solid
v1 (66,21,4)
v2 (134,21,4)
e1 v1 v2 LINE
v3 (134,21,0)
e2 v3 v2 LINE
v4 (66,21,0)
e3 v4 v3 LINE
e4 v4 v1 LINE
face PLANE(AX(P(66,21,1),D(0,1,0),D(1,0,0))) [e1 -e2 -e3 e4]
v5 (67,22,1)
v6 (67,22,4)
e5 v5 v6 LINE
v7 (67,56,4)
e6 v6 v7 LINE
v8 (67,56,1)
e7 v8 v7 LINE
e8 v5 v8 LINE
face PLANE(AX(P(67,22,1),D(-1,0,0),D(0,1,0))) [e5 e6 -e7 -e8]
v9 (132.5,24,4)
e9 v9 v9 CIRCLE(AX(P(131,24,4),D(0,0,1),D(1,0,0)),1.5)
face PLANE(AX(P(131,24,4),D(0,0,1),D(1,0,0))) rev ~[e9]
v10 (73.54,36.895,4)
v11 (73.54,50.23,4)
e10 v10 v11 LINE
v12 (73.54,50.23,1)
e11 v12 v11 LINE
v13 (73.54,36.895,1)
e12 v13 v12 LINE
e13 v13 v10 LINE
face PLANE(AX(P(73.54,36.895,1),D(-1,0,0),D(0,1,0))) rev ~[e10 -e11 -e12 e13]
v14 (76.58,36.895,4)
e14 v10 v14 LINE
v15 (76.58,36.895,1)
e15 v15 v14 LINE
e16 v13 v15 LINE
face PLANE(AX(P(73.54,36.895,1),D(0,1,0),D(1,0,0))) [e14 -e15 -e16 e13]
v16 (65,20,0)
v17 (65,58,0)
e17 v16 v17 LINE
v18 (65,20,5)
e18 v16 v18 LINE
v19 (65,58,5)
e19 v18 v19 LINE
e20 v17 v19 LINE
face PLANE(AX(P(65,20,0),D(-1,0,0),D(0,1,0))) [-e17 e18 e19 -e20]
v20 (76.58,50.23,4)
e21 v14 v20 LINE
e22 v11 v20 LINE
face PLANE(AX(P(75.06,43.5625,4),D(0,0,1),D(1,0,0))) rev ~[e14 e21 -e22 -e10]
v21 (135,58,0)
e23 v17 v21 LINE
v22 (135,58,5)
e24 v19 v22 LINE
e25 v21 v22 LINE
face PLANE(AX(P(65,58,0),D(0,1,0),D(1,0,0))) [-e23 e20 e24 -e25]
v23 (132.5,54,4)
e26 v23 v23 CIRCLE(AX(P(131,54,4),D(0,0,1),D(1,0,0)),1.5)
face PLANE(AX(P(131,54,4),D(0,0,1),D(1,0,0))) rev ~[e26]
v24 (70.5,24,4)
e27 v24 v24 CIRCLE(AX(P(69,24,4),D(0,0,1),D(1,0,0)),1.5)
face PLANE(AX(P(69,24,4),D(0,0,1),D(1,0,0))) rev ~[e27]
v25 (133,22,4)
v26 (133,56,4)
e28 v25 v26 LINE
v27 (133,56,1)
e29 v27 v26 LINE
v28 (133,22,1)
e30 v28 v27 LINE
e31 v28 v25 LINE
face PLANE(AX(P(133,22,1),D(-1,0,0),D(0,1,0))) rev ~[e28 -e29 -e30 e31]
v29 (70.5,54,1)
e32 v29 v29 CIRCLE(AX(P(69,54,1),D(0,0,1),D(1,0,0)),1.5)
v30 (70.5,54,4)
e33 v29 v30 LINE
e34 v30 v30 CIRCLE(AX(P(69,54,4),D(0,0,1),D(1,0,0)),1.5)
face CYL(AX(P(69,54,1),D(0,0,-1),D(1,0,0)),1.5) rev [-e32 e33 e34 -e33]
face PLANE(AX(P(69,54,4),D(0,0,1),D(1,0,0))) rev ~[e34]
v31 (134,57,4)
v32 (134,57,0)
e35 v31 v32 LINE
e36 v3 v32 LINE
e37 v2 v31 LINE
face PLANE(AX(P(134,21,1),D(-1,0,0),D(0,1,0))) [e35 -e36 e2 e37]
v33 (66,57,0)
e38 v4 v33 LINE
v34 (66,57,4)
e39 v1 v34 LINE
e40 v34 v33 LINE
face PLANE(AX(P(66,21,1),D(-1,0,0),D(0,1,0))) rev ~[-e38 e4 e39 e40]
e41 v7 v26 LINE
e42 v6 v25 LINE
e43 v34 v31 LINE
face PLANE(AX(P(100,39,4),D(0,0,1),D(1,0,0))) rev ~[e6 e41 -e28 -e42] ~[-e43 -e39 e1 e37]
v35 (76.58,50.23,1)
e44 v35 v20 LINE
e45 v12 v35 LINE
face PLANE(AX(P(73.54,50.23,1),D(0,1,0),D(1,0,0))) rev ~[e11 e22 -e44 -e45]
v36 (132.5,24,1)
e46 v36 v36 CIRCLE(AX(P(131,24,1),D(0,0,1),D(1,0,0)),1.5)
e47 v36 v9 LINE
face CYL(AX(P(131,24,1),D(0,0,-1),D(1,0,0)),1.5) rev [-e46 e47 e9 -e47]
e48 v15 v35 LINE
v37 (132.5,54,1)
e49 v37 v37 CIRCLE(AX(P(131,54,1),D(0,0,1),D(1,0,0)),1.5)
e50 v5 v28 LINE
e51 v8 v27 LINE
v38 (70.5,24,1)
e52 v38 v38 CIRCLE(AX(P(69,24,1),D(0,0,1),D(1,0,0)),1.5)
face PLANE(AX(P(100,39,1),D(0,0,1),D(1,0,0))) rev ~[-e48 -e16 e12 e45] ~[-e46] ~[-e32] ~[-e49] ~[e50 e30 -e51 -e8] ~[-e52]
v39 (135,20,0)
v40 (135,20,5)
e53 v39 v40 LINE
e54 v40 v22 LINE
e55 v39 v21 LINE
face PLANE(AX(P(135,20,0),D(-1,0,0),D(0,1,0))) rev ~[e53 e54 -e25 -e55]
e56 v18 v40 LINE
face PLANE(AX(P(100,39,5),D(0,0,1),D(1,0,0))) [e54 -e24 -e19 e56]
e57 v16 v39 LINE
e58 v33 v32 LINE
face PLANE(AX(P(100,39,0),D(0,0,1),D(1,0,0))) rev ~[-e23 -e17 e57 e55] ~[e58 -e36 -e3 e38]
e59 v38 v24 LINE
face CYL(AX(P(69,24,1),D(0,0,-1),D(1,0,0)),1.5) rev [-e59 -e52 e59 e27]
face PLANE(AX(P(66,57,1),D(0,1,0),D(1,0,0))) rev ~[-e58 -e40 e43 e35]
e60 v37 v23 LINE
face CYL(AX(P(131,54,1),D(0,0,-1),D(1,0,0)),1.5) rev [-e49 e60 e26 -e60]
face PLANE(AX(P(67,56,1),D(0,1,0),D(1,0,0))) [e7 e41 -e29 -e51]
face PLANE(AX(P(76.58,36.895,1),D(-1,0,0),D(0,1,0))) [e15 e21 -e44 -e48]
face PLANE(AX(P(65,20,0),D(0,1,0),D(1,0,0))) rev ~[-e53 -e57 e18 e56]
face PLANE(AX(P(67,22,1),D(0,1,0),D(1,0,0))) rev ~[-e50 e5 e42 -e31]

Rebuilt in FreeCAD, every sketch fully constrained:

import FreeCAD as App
import Part
import Sketcher

V = App.Vector
Q = App.Units.Quantity

doc = App.newDocument("Part")
body = doc.addObject("PartDesign::Body", "Body")

# Sketch on XY plane
sketch1 = body.newObject("Sketcher::SketchObject", "Sketch")
sketch1.AttachmentSupport = (doc.getObject("XY_Plane"), [""])
sketch1.MapMode = "FlatFace"
sketch1.addGeometry([
    Part.LineSegment(V(-34, 18, 0), V(-34, -18, 0)),
    Part.LineSegment(V(-34, -18, 0), V(34, -18, 0)),
    Part.LineSegment(V(34, -18, 0), V(34, 18, 0)),
    Part.LineSegment(V(34, 18, 0), V(-34, 18, 0)),
], False)
sketch1.addConstraint([
    Sketcher.Constraint("Coincident", 0, 2, 1, 1),
    Sketcher.Constraint("Coincident", 1, 2, 2, 1),
    Sketcher.Constraint("Coincident", 2, 2, 3, 1),
    Sketcher.Constraint("Coincident", 3, 2, 0, 1),
    Sketcher.Constraint("Vertical", 0),
    Sketcher.Constraint("Horizontal", 1),
    Sketcher.Constraint("Vertical", 2),
    Sketcher.Constraint("Horizontal", 3),
    Sketcher.Constraint("Symmetric", 0, 2, 2, 2, -1, 1),
    Sketcher.Constraint("DistanceX", 1, 1, 1, 2, Q("68 mm")),
    Sketcher.Constraint("DistanceY", 0, 2, 0, 1, Q("36 mm")),
])
pad1 = body.newObject("PartDesign::Pad", "Pad")
pad1.Profile = sketch1
pad1.Length = 1

# Sketch on XY plane
sketch2 = body.newObject("Sketcher::SketchObject", "Sketch001")
sketch2.AttachmentSupport = (doc.getObject("XY_Plane"), [""])
sketch2.MapMode = "FlatFace"
sketch2.AttachmentOffset = App.Placement(V(0, 0, 1), App.Rotation())
sketch2.addGeometry([
    Part.LineSegment(V(-34, 18, 0), V(-34, -18, 0)),  # 0
    Part.LineSegment(V(-34, -18, 0), V(34, -18, 0)),  # 1
    Part.LineSegment(V(34, -18, 0), V(34, 18, 0)),  # 2
    Part.LineSegment(V(34, 18, 0), V(-34, 18, 0)),  # 3
    Part.LineSegment(V(33, -17, 0), V(-33, -17, 0)),  # 4
    Part.LineSegment(V(-33, -17, 0), V(-33, 17, 0)),  # 5
    Part.LineSegment(V(-33, 17, 0), V(33, 17, 0)),  # 6
    Part.LineSegment(V(33, 17, 0), V(33, -17, 0)),  # 7
], False)
sketch2.addConstraint([
    Sketcher.Constraint("Coincident", 0, 2, 1, 1),
    Sketcher.Constraint("Coincident", 1, 2, 2, 1),
    Sketcher.Constraint("Coincident", 2, 2, 3, 1),
    Sketcher.Constraint("Coincident", 3, 2, 0, 1),
    Sketcher.Constraint("Coincident", 4, 2, 5, 1),
    Sketcher.Constraint("Coincident", 5, 2, 6, 1),
    Sketcher.Constraint("Coincident", 6, 2, 7, 1),
    Sketcher.Constraint("Coincident", 7, 2, 4, 1),
    Sketcher.Constraint("Vertical", 0),
    Sketcher.Constraint("Horizontal", 1),
    Sketcher.Constraint("Vertical", 2),
    Sketcher.Constraint("Horizontal", 3),
    Sketcher.Constraint("Horizontal", 4),
    Sketcher.Constraint("Vertical", 5),
    Sketcher.Constraint("Horizontal", 6),
    Sketcher.Constraint("Vertical", 7),
    Sketcher.Constraint("Symmetric", 0, 2, 2, 2, -1, 1),
    Sketcher.Constraint("Symmetric", 4, 2, 6, 2, -1, 1),
    Sketcher.Constraint("DistanceX", 1, 1, 1, 2, Q("68 mm")),
    Sketcher.Constraint("DistanceX", 4, 2, 4, 1, Q("66 mm")),
    Sketcher.Constraint("DistanceY", 0, 2, 0, 1, Q("36 mm")),
    Sketcher.Constraint("DistanceY", 5, 1, 5, 2, Q("34 mm")),
])
pad2 = body.newObject("PartDesign::Pad", "Pad001")
pad2.Profile = sketch2
pad2.Length = 3

# Sketch on XY plane
sketch3 = body.newObject("Sketcher::SketchObject", "Sketch002")
sketch3.AttachmentSupport = (doc.getObject("XY_Plane"), [""])
sketch3.MapMode = "FlatFace"
sketch3.AttachmentOffset = App.Placement(V(0, 0, 1), App.Rotation())
sketch3.addGeometry([
    Part.LineSegment(V(-26.5, 11.2, 0), V(-26.5, -2.1, 0)),
    Part.LineSegment(V(-26.5, -2.1, 0), V(-23.4, -2.1, 0)),
    Part.LineSegment(V(-23.4, -2.1, 0), V(-23.4, 11.2, 0)),
    Part.LineSegment(V(-23.4, 11.2, 0), V(-26.5, 11.2, 0)),
], False)
sketch3.addConstraint([
    Sketcher.Constraint("Coincident", 0, 2, 1, 1),
    Sketcher.Constraint("Coincident", 1, 2, 2, 1),
    Sketcher.Constraint("Coincident", 2, 2, 3, 1),
    Sketcher.Constraint("Coincident", 3, 2, 0, 1),
    Sketcher.Constraint("Vertical", 0),
    Sketcher.Constraint("Horizontal", 1),
    Sketcher.Constraint("Vertical", 2),
    Sketcher.Constraint("Horizontal", 3),
    Sketcher.Constraint("DistanceX", 1, 1, 1, 2, Q("3.04 mm")),
    Sketcher.Constraint("DistanceY", 0, 2, 0, 1, Q("13.335 mm")),
    Sketcher.Constraint("DistanceX", 0, 2, -1, 1, Q("26.46 mm")),
    Sketcher.Constraint("DistanceY", -1, 1, 2, 2, Q("11.23 mm")),
])
pad3 = body.newObject("PartDesign::Pad", "Pad002")
pad3.Profile = sketch3
pad3.Length = 3

# Sketch on XY plane
sketch4 = body.newObject("Sketcher::SketchObject", "Sketch003")
sketch4.AttachmentSupport = (doc.getObject("XY_Plane"), [""])
sketch4.MapMode = "FlatFace"
sketch4.AttachmentOffset = App.Placement(V(0, 0, 1), App.Rotation())
sketch4.addGeometry([
    Part.Circle(V(-31, 15, 0), V(0, 0, 1), 1.5),
    Part.Circle(V(31, 15, 0), V(0, 0, 1), 1.5),
    Part.Circle(V(-31, -15, 0), V(0, 0, 1), 1.5),
    Part.Circle(V(31, -15, 0), V(0, 0, 1), 1.5),
], False)
sketch4.addConstraint([
    Sketcher.Constraint("Equal", 0, 1),
    Sketcher.Constraint("Equal", 1, 2),
    Sketcher.Constraint("Equal", 2, 3),
    Sketcher.Constraint("Symmetric", 1, 3, 2, 3, -1, 1),
    Sketcher.Constraint("Symmetric", 0, 3, 3, 3, -1, 1),
    Sketcher.Constraint("Symmetric", 0, 3, 1, 3, -2),
    Sketcher.Constraint("Diameter", 0, Q("3 mm")),
    Sketcher.Constraint("DistanceX", 0, 3, -1, 1, Q("31 mm")),
    Sketcher.Constraint("DistanceY", -1, 1, 0, 3, Q("15 mm")),
])
pad4 = body.newObject("PartDesign::Pad", "Pad003")
pad4.Profile = sketch4
pad4.Length = 3
body2 = doc.addObject("PartDesign::Body", "Body001")
doc.recompute()

body.Placement = App.Placement(V(100, 39, 0), App.Rotation(V(0, 0, 1), 0))
boolean = body2.newObject("PartDesign::Boolean", "Boolean")
boolean.Type = "Fuse"
boolean.addObjects([body])
body3 = doc.addObject("PartDesign::Body", "Body002")

# Sketch on XY plane
sketch5 = body3.newObject("Sketcher::SketchObject", "Sketch004")
sketch5.AttachmentSupport = (doc.getObject("XY_Plane002"), [""])
sketch5.MapMode = "FlatFace"
sketch5.addGeometry([
    Part.LineSegment(V(65, 58, 0), V(65, 20, 0)),
    Part.LineSegment(V(65, 20, 0), V(135, 20, 0)),
    Part.LineSegment(V(135, 20, 0), V(135, 58, 0)),
    Part.LineSegment(V(135, 58, 0), V(65, 58, 0)),
], False)
sketch5.addConstraint([
    Sketcher.Constraint("Coincident", 0, 2, 1, 1),
    Sketcher.Constraint("Coincident", 1, 2, 2, 1),
    Sketcher.Constraint("Coincident", 2, 2, 3, 1),
    Sketcher.Constraint("Coincident", 3, 2, 0, 1),
    Sketcher.Constraint("Vertical", 0),
    Sketcher.Constraint("Horizontal", 1),
    Sketcher.Constraint("Vertical", 2),
    Sketcher.Constraint("Horizontal", 3),
    Sketcher.Constraint("DistanceX", 1, 1, 1, 2, Q("70 mm")),
    Sketcher.Constraint("DistanceY", 0, 2, 0, 1, Q("38 mm")),
    Sketcher.Constraint("DistanceX", -1, 1, 0, 2, Q("65 mm")),
    Sketcher.Constraint("DistanceY", -1, 1, 0, 2, Q("20 mm")),
])
pad5 = body3.newObject("PartDesign::Pad", "Pad004")
pad5.Profile = sketch5
pad5.Length = 5
doc.recompute()

boolean2 = body3.newObject("PartDesign::Boolean", "Boolean001")
boolean2.Type = "Cut"
boolean2.addObjects([body2])

doc.recompute()
